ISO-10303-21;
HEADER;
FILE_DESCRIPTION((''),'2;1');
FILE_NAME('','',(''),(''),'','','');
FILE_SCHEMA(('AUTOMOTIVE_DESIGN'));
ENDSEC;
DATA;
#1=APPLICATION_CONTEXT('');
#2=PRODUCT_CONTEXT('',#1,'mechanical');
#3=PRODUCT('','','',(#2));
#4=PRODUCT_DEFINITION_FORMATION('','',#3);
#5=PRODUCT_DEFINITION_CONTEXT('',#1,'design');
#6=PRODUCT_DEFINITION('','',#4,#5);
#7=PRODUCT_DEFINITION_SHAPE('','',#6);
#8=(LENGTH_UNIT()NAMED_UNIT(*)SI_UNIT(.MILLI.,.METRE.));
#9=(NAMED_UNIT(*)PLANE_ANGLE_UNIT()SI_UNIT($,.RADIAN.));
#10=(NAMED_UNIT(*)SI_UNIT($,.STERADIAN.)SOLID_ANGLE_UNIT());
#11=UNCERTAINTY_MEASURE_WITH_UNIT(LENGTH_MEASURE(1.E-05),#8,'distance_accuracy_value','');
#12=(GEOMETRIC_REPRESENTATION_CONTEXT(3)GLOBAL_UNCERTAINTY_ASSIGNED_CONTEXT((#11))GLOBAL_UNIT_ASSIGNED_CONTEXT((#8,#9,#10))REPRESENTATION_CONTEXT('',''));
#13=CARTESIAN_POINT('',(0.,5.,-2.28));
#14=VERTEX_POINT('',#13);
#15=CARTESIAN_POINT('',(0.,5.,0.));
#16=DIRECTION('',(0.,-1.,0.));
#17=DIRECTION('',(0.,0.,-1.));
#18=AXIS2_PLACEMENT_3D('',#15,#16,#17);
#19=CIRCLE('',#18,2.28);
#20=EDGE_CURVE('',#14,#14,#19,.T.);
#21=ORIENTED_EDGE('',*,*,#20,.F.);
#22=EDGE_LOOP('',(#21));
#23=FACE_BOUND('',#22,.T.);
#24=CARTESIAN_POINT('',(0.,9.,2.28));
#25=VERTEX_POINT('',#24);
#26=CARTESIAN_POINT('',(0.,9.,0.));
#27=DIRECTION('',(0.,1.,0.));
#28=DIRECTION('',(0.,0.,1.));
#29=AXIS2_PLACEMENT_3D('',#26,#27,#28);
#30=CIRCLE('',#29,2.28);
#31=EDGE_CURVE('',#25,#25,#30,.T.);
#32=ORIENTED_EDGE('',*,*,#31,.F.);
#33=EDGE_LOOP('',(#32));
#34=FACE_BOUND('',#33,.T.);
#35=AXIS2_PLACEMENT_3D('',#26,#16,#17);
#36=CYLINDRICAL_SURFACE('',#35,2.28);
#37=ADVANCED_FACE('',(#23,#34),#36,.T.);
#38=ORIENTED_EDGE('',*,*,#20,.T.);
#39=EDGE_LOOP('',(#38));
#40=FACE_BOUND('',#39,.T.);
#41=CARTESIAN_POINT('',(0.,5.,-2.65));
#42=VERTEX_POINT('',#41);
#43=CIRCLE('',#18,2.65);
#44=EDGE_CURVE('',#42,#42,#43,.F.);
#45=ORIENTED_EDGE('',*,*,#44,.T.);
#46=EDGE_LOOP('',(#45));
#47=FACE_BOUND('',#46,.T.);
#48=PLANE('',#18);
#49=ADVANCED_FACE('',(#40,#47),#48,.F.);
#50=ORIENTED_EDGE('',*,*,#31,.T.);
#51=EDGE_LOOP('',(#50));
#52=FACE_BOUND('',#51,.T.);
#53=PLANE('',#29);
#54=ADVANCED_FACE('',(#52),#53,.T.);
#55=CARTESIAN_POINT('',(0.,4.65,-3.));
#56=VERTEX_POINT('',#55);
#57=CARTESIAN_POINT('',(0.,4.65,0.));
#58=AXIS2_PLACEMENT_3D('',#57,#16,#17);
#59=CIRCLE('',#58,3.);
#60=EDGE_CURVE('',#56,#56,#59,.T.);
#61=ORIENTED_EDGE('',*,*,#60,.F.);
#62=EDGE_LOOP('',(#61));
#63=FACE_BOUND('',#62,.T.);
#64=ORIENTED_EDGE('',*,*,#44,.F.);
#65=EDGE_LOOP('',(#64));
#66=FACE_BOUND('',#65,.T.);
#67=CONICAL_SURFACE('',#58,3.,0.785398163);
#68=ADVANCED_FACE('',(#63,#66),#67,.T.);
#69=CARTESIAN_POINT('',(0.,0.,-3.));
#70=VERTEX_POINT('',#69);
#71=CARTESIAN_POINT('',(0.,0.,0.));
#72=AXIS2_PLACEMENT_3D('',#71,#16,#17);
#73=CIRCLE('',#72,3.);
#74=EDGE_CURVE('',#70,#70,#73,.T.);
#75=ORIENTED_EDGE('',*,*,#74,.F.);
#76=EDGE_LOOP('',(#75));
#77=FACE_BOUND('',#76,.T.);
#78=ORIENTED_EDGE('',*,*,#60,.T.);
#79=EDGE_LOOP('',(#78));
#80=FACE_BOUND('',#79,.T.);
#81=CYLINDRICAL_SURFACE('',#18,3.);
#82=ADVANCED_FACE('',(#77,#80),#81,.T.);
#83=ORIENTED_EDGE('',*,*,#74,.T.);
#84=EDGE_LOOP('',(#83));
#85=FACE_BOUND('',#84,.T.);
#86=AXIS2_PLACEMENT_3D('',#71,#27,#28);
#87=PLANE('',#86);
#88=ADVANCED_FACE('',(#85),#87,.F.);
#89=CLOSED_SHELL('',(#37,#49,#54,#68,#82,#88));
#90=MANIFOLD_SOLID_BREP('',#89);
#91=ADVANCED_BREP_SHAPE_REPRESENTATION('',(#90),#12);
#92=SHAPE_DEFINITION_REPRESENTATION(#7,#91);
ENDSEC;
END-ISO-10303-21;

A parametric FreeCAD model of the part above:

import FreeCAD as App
import Part
import Sketcher

V = App.Vector


def edges_at(feature, points):
    """Names of the edges that pass closest to the given points."""
    edges = feature.Shape.Edges
    near = lambda p: min(range(len(edges)), key=lambda i: edges[i].distToShape(Part.Vertex(*p))[0])
    return sorted({f"Edge{near(p) + 1}" for p in points})

doc = App.newDocument("Part")
params = doc.addObject("Spreadsheet::Sheet", "Params")
for row, (alias, value) in enumerate([
    ("sketch1_diameter", "4.56 mm"),
    ("pad1_length", "9 mm"),
    ("sketch2_diameter", "6 mm"),
    ("pad2_length", "5 mm"),
    ("chamfer_size", "0.35 mm"),
], start=1):
    params.set(f"A{row}", alias)
    params.set(f"B{row}", "=" + value)
    params.setAlias(f"B{row}", alias)

body = doc.addObject("PartDesign::Body", "Body")

sketch1 = body.newObject("Sketcher::SketchObject", "Sketch")
sketch1.AttachmentSupport = (doc.getObject("XZ_Plane"), [""])
sketch1.MapMode = "FlatFace"
sketch1.addGeometry(Part.Circle(V(0, 0, 0), V(0, 0, 1), 2.3), False)
sketch1.addConstraint(Sketcher.Constraint("Coincident", 0, 3, -1, 1))
sketch1.addConstraint(Sketcher.Constraint("Diameter", 0, 4.56))
sketch1.setExpression("Constraints[1]", "Params.sketch1_diameter")
pad1 = body.newObject("PartDesign::Pad", "Pad")
pad1.Profile = sketch1
pad1.setExpression("Length", "Params.pad1_length")
pad1.Reversed = True

sketch2 = body.newObject("Sketcher::SketchObject", "Sketch001")
sketch2.AttachmentSupport = (doc.getObject("XZ_Plane"), [""])
sketch2.MapMode = "FlatFace"
sketch2.addGeometry(Part.Circle(V(0, 0, 0), V(0, 0, 1), 3), False)
sketch2.addConstraint(Sketcher.Constraint("Coincident", 0, 3, -1, 1))
sketch2.addConstraint(Sketcher.Constraint("Diameter", 0, 6.0))
sketch2.setExpression("Constraints[1]", "Params.sketch2_diameter")
pad2 = body.newObject("PartDesign::Pad", "Pad001")
pad2.Profile = sketch2
pad2.setExpression("Length", "Params.pad2_length")
pad2.Reversed = True
doc.recompute()

chamfer = body.newObject("PartDesign::Chamfer", "Chamfer")
chamfer.Base = (pad2, edges_at(pad2, [(0, 5, 3)]))
chamfer.setExpression("Size", "Params.chamfer_size")

doc.recompute()
